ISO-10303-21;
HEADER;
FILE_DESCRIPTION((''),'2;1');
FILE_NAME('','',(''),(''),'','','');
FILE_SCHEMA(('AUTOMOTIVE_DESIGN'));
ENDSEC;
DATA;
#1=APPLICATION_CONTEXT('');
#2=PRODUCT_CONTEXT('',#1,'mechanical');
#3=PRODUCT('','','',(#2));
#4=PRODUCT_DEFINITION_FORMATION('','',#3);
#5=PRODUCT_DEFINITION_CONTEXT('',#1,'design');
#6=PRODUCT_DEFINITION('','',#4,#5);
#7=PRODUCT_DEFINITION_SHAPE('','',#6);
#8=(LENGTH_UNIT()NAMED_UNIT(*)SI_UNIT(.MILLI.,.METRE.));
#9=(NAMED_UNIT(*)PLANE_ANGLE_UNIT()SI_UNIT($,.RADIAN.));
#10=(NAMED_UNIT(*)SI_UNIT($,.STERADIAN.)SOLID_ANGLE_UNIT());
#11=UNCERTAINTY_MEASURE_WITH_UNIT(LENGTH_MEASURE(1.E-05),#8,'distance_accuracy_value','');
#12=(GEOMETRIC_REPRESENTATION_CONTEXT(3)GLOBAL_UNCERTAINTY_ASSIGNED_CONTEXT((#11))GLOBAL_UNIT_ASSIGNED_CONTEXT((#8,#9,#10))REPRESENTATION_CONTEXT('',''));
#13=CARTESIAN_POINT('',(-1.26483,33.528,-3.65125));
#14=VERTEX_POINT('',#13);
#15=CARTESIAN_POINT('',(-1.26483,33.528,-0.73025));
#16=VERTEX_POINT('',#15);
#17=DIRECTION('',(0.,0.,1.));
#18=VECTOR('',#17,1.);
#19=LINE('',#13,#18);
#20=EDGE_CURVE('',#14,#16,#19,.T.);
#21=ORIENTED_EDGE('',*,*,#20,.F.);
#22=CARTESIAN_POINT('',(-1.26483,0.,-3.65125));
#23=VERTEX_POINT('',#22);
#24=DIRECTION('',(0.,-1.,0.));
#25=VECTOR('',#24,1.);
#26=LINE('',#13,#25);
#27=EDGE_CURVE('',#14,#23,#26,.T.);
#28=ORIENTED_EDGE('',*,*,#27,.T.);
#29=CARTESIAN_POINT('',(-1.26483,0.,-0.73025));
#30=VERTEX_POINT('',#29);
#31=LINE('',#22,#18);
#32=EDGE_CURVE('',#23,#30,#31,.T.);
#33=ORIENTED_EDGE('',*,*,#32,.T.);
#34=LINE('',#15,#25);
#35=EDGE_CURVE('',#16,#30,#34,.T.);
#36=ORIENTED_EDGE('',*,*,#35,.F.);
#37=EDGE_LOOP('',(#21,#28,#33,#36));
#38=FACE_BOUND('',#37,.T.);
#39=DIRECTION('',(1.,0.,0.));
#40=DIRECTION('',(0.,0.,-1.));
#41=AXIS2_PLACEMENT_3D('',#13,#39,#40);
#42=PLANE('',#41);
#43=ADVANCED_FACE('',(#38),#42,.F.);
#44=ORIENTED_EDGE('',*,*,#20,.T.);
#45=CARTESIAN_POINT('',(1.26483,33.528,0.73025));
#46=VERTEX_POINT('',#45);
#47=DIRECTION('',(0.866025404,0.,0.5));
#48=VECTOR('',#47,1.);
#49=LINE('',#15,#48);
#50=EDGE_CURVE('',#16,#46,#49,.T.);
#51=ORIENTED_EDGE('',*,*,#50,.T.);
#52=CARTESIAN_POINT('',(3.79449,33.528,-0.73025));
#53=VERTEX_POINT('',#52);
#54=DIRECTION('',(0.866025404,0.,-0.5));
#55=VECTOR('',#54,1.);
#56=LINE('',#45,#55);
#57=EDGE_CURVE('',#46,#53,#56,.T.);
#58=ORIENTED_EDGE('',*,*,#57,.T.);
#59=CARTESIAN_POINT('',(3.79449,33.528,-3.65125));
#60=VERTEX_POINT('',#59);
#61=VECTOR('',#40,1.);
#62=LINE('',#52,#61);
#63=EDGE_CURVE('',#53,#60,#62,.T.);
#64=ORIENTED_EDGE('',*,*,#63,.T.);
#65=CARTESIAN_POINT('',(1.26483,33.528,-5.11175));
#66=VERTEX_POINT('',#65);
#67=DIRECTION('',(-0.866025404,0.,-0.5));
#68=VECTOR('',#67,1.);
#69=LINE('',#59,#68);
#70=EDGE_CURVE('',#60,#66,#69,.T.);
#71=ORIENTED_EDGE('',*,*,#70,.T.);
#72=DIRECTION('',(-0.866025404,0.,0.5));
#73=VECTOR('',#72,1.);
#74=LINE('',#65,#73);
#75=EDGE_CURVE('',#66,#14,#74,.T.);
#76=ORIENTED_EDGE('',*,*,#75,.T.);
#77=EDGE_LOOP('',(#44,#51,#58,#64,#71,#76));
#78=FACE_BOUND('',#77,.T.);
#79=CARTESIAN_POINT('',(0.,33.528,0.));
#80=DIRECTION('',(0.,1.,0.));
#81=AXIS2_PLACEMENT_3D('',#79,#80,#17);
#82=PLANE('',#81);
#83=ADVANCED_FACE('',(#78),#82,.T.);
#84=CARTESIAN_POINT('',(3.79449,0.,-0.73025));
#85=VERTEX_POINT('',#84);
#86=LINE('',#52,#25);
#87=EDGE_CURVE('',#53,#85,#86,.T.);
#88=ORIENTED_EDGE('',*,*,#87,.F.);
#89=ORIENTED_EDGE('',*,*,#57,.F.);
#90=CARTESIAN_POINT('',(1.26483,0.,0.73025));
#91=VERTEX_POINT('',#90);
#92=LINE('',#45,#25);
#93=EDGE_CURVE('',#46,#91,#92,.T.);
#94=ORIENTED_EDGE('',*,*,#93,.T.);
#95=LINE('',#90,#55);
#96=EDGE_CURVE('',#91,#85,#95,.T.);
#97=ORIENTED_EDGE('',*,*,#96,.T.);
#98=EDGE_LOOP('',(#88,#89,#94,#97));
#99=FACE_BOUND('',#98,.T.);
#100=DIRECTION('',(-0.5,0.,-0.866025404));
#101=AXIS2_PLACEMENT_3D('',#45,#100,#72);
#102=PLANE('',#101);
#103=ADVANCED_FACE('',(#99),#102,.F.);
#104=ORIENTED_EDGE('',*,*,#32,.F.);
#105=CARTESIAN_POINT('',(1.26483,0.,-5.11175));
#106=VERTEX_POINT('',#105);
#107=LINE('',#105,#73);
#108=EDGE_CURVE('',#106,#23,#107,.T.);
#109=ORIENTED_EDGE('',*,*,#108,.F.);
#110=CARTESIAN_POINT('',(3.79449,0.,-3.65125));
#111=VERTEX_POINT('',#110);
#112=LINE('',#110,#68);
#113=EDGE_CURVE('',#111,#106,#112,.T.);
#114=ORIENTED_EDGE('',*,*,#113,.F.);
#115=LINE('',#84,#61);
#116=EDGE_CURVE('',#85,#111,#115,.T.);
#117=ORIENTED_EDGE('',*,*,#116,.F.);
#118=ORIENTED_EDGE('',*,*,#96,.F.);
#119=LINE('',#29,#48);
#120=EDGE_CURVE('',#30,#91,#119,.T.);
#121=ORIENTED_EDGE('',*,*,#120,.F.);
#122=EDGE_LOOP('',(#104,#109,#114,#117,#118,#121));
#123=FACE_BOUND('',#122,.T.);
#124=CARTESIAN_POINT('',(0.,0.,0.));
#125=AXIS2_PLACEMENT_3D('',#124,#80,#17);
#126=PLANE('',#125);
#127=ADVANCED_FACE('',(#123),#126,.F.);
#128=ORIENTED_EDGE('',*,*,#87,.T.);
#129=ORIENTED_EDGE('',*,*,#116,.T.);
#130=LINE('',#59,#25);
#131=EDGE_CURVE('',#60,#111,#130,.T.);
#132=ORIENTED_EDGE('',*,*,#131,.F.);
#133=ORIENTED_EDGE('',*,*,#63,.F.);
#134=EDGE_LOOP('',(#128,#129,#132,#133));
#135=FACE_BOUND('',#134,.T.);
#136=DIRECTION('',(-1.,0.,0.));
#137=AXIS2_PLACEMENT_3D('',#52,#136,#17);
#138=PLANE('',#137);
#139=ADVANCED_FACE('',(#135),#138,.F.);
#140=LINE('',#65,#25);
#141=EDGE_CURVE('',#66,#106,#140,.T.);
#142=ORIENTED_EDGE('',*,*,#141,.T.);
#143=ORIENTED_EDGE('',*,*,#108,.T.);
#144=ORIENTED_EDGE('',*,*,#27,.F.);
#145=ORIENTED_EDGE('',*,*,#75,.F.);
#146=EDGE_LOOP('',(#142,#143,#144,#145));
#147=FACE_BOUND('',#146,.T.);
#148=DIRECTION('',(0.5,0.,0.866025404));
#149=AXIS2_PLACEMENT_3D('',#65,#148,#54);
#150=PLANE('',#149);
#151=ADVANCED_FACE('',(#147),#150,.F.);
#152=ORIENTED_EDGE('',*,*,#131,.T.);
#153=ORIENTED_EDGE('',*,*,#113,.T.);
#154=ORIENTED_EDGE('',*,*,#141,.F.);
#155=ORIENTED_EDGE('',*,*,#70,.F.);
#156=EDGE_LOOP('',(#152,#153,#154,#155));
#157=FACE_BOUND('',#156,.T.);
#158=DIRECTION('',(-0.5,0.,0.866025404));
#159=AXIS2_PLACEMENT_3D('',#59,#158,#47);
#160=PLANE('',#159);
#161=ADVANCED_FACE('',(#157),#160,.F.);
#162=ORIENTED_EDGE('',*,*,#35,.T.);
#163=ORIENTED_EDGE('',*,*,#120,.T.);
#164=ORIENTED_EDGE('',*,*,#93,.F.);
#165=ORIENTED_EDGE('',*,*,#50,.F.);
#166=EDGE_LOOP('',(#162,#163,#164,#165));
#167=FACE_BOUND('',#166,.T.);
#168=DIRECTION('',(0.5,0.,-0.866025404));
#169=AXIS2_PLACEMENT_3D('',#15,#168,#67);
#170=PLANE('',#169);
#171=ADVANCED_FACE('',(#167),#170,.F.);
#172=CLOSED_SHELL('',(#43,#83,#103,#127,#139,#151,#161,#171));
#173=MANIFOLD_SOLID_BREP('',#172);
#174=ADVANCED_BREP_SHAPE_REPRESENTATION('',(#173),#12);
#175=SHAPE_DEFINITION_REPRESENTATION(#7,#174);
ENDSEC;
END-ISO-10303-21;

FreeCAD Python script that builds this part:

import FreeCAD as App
import Part
import Sketcher

V = App.Vector
Q = App.Units.Quantity


def add_polygon(sketch, points):
    """Adds a closed chain of lines whose ends are joined by coincident constraints."""
    first, n = sketch.GeometryCount, len(points)
    for a, b in zip(points, points[1:] + points[:1]):
        sketch.addGeometry(Part.LineSegment(App.Vector(*a, 0), App.Vector(*b, 0)), False)
    for i in range(n):
        sketch.addConstraint(Sketcher.Constraint("Coincident", first + i, 2, first + (i + 1) % n, 1))

doc = App.newDocument("Part")
body = doc.addObject("PartDesign::Body", "Body")

sketch1 = body.newObject("Sketcher::SketchObject", "Sketch")
sketch1.AttachmentSupport = (doc.getObject("XZ_Plane"), [""])
sketch1.MapMode = "FlatFace"
add_polygon(sketch1, [(1.26483, -5.11175), (-1.26483, -3.65125), (-1.26483, -0.73025), (1.26483, 0.73025), (3.79449, -0.73025), (3.79449, -3.65125)])
sketch1.addConstraint([
    Sketcher.Constraint("Vertical", 1),
    Sketcher.Constraint("Vertical", 4),
    Sketcher.Constraint("Symmetric", 1, 2, 2, 2, -1, 1),
    Sketcher.Constraint("Parallel", 0, 3),
    Sketcher.Constraint("Parallel", 2, 5),
    Sketcher.Constraint("Horizontal", 1, 2, 3, 2),
    Sketcher.Constraint("Horizontal", 0, 2, 4, 2),
    Sketcher.Constraint("Vertical", 2, 2, 5, 2),
    Sketcher.Constraint("Angle", 0, Q("150 deg")),
    Sketcher.Constraint("DistanceY", 1, 1, 1, 2, Q("0.115 in")),
    Sketcher.Constraint("DistanceY", 5, 2, 2, 2, Q("0.23 in")),
])
pad1 = body.newObject("PartDesign::Pad", "Pad")
pad1.Profile = sketch1
pad1.Length = Q("1.32 in")
pad1.Reversed = True

doc.recompute()
